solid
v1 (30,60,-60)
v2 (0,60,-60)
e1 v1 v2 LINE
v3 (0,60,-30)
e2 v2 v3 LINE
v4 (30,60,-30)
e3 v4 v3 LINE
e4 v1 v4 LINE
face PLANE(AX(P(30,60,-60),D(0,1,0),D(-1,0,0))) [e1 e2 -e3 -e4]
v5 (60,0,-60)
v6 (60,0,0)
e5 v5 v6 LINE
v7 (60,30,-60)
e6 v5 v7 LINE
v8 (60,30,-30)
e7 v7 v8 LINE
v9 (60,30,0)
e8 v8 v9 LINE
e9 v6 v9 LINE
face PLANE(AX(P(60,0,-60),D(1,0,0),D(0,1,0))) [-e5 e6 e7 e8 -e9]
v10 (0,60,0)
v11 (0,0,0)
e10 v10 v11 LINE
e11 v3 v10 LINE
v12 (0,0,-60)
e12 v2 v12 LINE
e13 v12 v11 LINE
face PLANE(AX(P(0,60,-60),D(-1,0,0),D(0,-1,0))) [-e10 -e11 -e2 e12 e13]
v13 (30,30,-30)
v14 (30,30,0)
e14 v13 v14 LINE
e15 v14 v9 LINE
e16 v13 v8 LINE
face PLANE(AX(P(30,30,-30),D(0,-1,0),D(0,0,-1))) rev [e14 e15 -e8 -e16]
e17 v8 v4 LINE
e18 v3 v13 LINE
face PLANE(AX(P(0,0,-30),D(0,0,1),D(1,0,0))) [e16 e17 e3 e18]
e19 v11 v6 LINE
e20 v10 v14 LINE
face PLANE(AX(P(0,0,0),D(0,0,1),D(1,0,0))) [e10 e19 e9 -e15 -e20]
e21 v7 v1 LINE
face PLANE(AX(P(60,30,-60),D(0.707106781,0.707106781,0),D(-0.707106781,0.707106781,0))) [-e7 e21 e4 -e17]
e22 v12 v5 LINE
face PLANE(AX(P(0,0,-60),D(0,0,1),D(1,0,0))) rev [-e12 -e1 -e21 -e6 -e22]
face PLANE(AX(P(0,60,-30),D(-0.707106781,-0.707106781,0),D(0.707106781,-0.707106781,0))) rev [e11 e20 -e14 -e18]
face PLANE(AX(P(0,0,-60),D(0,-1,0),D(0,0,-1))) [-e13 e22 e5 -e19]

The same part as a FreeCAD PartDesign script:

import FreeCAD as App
import Part
import Sketcher
Q = App.Units.Quantity

doc = App.newDocument("Part")
body = doc.addObject("PartDesign::Body", "Body")

# Sketch on XY plane
sketch1 = body.newObject("Sketcher::SketchObject", "Sketch")
sketch1.AttachmentSupport = (doc.getObject("XY_Plane"), [""])
sketch1.MapMode = "FlatFace"
sketch1.addGeometry([
    Part.LineSegment(App.Vector(0, 60, 0), App.Vector(0, 0, 0)),  # 0
    Part.LineSegment(App.Vector(0, 0, 0), App.Vector(60, 0, 0)),  # 1
    Part.LineSegment(App.Vector(60, 0, 0), App.Vector(60, 30, 0)),  # 2
    Part.LineSegment(App.Vector(60, 30, 0), App.Vector(30, 60, 0)),  # 3
    Part.LineSegment(App.Vector(30, 60, 0), App.Vector(0, 60, 0)),  # 4
], False)
sketch1.addConstraint([
    Sketcher.Constraint("Coincident", 0, 2, 1, 1),
    Sketcher.Constraint("Coincident", 1, 2, 2, 1),
    Sketcher.Constraint("Coincident", 2, 2, 3, 1),
    Sketcher.Constraint("Coincident", 3, 2, 4, 1),
    Sketcher.Constraint("Coincident", 4, 2, 0, 1),
    Sketcher.Constraint("Vertical", 0),
    Sketcher.Constraint("Horizontal", 1),
    Sketcher.Constraint("Vertical", 2),
    Sketcher.Constraint("Horizontal", 4),
    Sketcher.Constraint("Coincident", 0, 2, -1, 1),
    Sketcher.Constraint("Equal", 1, 0),
    Sketcher.Constraint("Equal", 4, 2),
    Sketcher.Constraint("DistanceX", 1, 1, 1, 2, 60.0),
    Sketcher.Constraint("DistanceX", 4, 2, 4, 1, 30.0),
])
pad1 = body.newObject("PartDesign::Pad", "Pad")
pad1.Profile = sketch1
pad1.Length = 60
pad1.Reversed = True

# Sketch on XY plane
sketch2 = body.newObject("Sketcher::SketchObject", "Sketch001")
sketch2.AttachmentSupport = (doc.getObject("XY_Plane"), [""])
sketch2.MapMode = "FlatFace"
sketch2.addGeometry([
    Part.LineSegment(App.Vector(60, 30, 0), App.Vector(30, 60, 0)),
    Part.LineSegment(App.Vector(30, 60, 0), App.Vector(0, 60, 0)),
    Part.LineSegment(App.Vector(0, 60, 0), App.Vector(30, 30, 0)),
    Part.LineSegment(App.Vector(30, 30, 0), App.Vector(60, 30, 0)),
], False)
sketch2.addConstraint([
    Sketcher.Constraint("Coincident", 0, 2, 1, 1),
    Sketcher.Constraint("Coincident", 1, 2, 2, 1),
    Sketcher.Constraint("Coincident", 2, 2, 3, 1),
    Sketcher.Constraint("Coincident", 3, 2, 0, 1),
    Sketcher.Constraint("Horizontal", 1),
    Sketcher.Constraint("Horizontal", 3),
    Sketcher.Constraint("PointOnObject", 1, 2, -2),
    Sketcher.Constraint("Parallel", 0, 2),
    Sketcher.Constraint("Vertical", 0, 2, 2, 2),
    Sketcher.Constraint("DistanceX", 1, 2, 1, 1, 30.0),
    Sketcher.Constraint("Angle", 0, Q("135 deg")),
    Sketcher.Constraint("DistanceY", -1, 1, 0, 2, 60.0),
])
pocket1 = body.newObject("PartDesign::Pocket", "Pocket")
pocket1.Profile = sketch2
pocket1.Length = 30

doc.recompute()
